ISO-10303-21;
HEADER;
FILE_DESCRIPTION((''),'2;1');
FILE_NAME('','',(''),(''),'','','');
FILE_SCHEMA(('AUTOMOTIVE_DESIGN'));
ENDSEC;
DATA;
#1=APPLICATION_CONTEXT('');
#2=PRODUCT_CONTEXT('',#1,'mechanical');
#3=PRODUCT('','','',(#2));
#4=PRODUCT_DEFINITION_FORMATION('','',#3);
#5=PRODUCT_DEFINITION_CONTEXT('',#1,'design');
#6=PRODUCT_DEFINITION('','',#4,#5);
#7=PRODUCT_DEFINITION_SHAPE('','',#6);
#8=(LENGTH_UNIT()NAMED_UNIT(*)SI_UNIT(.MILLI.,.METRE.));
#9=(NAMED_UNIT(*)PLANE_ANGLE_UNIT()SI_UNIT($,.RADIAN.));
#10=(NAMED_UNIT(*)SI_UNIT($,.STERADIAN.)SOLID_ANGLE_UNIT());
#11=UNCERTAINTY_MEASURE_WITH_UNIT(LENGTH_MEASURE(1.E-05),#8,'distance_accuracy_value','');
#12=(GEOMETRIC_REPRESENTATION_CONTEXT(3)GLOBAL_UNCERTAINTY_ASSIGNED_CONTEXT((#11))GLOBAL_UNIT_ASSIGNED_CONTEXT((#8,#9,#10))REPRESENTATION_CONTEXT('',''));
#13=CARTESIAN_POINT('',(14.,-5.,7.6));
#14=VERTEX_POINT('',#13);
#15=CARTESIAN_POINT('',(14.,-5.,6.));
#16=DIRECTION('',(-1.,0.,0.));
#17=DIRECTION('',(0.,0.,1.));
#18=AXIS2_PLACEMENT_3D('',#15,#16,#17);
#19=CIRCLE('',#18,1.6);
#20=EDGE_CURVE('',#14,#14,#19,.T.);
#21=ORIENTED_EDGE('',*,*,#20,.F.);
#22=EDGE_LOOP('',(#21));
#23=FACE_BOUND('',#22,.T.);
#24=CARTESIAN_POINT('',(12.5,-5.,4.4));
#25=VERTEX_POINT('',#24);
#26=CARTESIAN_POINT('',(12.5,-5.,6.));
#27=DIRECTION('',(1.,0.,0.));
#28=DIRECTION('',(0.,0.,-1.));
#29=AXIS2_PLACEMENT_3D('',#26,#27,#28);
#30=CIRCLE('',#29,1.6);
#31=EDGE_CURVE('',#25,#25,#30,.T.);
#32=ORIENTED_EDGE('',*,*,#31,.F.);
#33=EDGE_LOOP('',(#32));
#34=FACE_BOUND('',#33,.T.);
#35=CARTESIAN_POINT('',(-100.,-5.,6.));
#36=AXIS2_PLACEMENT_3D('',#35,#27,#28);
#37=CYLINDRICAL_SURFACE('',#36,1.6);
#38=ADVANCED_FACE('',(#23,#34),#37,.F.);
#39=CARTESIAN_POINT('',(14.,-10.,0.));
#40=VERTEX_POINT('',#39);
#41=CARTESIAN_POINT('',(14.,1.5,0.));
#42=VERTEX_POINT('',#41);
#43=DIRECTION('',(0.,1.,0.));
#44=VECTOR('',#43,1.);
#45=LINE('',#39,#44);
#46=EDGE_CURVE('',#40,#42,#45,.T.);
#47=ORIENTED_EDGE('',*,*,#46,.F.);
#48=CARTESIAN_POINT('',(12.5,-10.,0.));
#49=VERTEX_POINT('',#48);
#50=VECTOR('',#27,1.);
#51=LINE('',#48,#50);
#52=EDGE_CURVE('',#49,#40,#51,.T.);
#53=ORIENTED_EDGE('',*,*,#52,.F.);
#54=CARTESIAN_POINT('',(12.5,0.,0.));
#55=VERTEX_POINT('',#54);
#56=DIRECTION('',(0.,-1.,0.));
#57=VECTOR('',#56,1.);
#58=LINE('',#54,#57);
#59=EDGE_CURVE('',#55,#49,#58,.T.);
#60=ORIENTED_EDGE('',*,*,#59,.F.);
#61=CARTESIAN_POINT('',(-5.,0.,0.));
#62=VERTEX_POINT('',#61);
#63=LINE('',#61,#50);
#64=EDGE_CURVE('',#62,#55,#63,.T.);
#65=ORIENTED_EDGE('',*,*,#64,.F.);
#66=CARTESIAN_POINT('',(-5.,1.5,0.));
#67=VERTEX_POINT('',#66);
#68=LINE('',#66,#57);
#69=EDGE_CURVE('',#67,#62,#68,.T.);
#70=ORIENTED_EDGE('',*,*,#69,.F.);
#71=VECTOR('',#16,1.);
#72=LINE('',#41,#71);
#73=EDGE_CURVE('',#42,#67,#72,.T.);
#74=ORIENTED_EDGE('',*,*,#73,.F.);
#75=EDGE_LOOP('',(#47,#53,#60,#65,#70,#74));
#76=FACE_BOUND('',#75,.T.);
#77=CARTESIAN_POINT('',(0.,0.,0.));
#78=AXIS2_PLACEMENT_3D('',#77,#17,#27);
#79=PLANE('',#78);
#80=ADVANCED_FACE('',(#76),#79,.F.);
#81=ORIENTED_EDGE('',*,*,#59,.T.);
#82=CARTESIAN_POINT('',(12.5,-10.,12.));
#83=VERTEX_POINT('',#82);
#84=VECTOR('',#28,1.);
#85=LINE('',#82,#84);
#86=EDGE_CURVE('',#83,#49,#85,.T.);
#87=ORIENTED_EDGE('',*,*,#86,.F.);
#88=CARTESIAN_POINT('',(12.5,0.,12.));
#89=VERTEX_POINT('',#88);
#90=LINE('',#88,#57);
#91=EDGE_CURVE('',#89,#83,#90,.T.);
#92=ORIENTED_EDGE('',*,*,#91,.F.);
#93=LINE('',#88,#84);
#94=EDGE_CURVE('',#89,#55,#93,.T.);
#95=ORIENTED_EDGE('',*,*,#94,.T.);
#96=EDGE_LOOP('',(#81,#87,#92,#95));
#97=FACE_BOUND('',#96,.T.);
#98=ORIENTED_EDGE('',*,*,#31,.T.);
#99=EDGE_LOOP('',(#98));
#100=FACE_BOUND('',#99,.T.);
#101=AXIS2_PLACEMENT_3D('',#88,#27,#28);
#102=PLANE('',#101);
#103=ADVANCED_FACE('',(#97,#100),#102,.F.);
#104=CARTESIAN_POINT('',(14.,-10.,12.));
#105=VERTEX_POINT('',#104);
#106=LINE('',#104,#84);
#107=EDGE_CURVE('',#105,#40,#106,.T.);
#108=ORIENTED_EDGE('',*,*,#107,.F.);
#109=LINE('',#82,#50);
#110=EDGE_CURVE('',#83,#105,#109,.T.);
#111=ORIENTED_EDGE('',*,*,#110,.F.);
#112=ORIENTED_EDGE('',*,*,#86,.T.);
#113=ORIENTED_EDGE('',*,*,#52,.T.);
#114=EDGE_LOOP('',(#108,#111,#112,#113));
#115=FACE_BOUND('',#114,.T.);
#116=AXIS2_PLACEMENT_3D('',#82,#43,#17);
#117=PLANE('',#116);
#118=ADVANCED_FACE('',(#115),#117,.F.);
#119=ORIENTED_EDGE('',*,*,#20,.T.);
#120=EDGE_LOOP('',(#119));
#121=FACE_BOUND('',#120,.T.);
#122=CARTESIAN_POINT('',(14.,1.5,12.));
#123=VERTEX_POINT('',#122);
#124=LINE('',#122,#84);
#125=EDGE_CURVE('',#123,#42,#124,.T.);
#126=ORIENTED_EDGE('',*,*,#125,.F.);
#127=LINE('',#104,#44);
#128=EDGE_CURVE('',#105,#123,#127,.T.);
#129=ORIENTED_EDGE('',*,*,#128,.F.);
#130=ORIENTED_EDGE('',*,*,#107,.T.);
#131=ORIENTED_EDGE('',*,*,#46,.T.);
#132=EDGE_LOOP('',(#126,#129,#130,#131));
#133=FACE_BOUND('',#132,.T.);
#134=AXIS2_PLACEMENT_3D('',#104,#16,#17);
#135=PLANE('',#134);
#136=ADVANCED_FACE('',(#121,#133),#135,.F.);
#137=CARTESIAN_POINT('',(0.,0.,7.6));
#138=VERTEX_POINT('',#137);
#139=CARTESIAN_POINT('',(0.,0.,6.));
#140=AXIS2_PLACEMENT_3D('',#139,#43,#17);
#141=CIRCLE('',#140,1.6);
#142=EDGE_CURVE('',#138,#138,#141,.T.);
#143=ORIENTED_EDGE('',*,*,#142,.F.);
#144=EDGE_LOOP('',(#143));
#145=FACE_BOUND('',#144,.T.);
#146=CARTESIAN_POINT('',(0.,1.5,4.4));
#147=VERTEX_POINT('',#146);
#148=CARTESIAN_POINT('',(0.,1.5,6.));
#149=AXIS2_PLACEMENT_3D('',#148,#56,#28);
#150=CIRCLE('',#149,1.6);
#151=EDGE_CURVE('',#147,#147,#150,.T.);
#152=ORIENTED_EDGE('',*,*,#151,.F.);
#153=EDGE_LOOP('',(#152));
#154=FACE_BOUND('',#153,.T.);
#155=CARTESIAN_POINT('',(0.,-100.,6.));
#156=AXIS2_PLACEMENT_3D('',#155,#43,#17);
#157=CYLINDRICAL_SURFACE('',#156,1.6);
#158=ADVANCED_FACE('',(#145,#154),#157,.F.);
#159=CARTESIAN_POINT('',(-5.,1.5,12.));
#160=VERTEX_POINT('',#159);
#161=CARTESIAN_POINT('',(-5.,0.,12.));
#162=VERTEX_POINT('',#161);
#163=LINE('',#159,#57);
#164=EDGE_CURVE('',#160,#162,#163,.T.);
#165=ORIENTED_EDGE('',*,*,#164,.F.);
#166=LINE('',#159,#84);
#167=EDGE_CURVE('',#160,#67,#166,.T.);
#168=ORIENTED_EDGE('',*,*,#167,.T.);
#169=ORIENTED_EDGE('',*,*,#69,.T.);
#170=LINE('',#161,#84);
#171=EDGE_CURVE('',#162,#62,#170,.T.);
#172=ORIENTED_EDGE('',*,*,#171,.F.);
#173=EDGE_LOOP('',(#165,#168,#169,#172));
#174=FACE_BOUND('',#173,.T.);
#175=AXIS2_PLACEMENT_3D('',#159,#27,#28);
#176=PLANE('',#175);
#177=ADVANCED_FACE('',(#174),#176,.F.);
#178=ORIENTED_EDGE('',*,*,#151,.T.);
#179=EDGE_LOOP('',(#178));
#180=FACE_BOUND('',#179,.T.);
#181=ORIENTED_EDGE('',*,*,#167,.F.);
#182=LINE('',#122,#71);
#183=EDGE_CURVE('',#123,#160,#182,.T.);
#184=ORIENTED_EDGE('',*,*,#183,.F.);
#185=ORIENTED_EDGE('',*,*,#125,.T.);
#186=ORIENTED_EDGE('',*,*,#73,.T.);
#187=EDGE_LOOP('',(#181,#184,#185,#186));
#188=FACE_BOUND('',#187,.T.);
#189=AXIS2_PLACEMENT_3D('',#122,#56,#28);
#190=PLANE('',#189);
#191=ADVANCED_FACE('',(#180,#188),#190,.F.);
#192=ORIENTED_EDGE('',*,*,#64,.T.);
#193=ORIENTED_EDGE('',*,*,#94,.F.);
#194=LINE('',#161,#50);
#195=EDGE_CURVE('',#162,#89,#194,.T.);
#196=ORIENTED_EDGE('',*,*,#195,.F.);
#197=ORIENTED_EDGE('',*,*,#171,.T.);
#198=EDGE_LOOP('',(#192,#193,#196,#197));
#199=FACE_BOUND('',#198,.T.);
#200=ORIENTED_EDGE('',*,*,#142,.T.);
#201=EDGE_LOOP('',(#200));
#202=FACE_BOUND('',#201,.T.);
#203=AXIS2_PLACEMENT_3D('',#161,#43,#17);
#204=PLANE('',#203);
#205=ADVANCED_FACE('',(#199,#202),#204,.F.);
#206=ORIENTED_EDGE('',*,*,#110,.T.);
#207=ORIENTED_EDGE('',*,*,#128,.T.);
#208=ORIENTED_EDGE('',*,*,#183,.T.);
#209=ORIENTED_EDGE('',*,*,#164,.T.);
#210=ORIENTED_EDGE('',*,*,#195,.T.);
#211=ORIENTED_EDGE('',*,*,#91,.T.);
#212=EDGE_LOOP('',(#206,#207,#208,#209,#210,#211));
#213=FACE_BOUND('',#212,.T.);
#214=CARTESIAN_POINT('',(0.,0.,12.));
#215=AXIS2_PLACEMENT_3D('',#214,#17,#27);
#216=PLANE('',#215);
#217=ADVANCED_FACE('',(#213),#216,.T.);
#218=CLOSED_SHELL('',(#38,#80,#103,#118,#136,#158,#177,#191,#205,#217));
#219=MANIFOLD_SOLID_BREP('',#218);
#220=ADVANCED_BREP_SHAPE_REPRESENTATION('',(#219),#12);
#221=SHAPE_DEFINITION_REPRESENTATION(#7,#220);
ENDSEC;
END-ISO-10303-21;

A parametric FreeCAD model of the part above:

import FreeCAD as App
import Part
import Sketcher

doc = App.newDocument("Part")
params = doc.addObject("Spreadsheet::Sheet", "Params")
for row, (alias, value) in enumerate([
    ("sketch1_width", "19 mm"),
    ("sketch1_height", "10 mm"),
    ("sketch1_width2", "17.5 mm"),
    ("pad1_length", "12 mm"),
    ("sketch2_diameter", "3.2 mm"),
    ("sketch3_diameter", "3.2 mm"),
], start=1):
    params.set(f"A{row}", alias)
    params.set(f"B{row}", "=" + value)
    params.setAlias(f"B{row}", alias)

body = doc.addObject("PartDesign::Body", "Body")

sketch1 = body.newObject("Sketcher::SketchObject", "Sketch")
sketch1.AttachmentSupport = (doc.getObject("XY_Plane"), [""])
sketch1.MapMode = "FlatFace"
sketch1.addGeometry([
    Part.LineSegment(App.Vector(-5, 0, 0), App.Vector(12.5, 0, 0)),
    Part.LineSegment(App.Vector(12.5, 0, 0), App.Vector(12.5, -10, 0)),
    Part.LineSegment(App.Vector(12.5, -10, 0), App.Vector(14, -10, 0)),
    Part.LineSegment(App.Vector(14, -10, 0), App.Vector(14, 1.5, 0)),
    Part.LineSegment(App.Vector(14, 1.5, 0), App.Vector(-5, 1.5, 0)),
    Part.LineSegment(App.Vector(-5, 1.5, 0), App.Vector(-5, 0, 0)),
], False)
sketch1.addConstraint([
    Sketcher.Constraint("Coincident", 0, 2, 1, 1),
    Sketcher.Constraint("Coincident", 1, 2, 2, 1),
    Sketcher.Constraint("Coincident", 2, 2, 3, 1),
    Sketcher.Constraint("Coincident", 3, 2, 4, 1),
    Sketcher.Constraint("Coincident", 4, 2, 5, 1),
    Sketcher.Constraint("Coincident", 5, 2, 0, 1),
    Sketcher.Constraint("Horizontal", 0),
    Sketcher.Constraint("Vertical", 1),
    Sketcher.Constraint("Horizontal", 2),
    Sketcher.Constraint("Vertical", 3),
    Sketcher.Constraint("Horizontal", 4),
    Sketcher.Constraint("Vertical", 5),
    Sketcher.Constraint("PointOnObject", 0, 2, -1),
    Sketcher.Constraint("Equal", 2, 5),
    Sketcher.Constraint("DistanceX", 4, 2, 4, 1, 19.0),
    Sketcher.Constraint("DistanceY", 1, 2, 1, 1, 10.0),
    Sketcher.Constraint("DistanceX", 0, 1, 0, 2, 17.5),
    Sketcher.Constraint("DistanceX", -1, 1, 2, 2, 14.0),
])
sketch1.setExpression("Constraints[14]", "Params.sketch1_width")
sketch1.setExpression("Constraints[15]", "Params.sketch1_height")
sketch1.setExpression("Constraints[16]", "Params.sketch1_width2")
pad1 = body.newObject("PartDesign::Pad", "Pad")
pad1.Profile = sketch1
pad1.setExpression("Length", "Params.pad1_length")

sketch2 = body.newObject("Sketcher::SketchObject", "Sketch001")
sketch2.AttachmentSupport = (doc.getObject("XZ_Plane"), [""])
sketch2.MapMode = "FlatFace"
sketch2.addGeometry(Part.Circle(App.Vector(0, 6, 0), App.Vector(0, 0, 1), 1.6), False)
sketch2.addConstraint([
    Sketcher.Constraint("PointOnObject", 0, 3, -2),
    Sketcher.Constraint("Diameter", 0, 3.2),
    Sketcher.Constraint("DistanceY", -1, 1, 0, 3, 6.0),
])
sketch2.setExpression("Constraints[1]", "Params.sketch2_diameter")
pocket1 = body.newObject("PartDesign::Pocket", "Pocket")
pocket1.Profile = sketch2
pocket1.Type = "ThroughAll"
pocket1.Midplane = True

sketch3 = body.newObject("Sketcher::SketchObject", "Sketch002")
sketch3.AttachmentSupport = (doc.getObject("YZ_Plane"), [""])
sketch3.MapMode = "FlatFace"
sketch3.addGeometry(Part.Circle(App.Vector(-5, 6, 0), App.Vector(0, 0, 1), 1.6), False)
sketch3.addConstraint([
    Sketcher.Constraint("Diameter", 0, 3.2),
    Sketcher.Constraint("DistanceX", 0, 3, -1, 1, 5.0),
    Sketcher.Constraint("DistanceY", -1, 1, 0, 3, 6.0),
])
sketch3.setExpression("Constraints[0]", "Params.sketch3_diameter")
pocket2 = body.newObject("PartDesign::Pocket", "Pocket001")
pocket2.Profile = sketch3
pocket2.Type = "ThroughAll"
pocket2.Midplane = True

doc.recompute()
